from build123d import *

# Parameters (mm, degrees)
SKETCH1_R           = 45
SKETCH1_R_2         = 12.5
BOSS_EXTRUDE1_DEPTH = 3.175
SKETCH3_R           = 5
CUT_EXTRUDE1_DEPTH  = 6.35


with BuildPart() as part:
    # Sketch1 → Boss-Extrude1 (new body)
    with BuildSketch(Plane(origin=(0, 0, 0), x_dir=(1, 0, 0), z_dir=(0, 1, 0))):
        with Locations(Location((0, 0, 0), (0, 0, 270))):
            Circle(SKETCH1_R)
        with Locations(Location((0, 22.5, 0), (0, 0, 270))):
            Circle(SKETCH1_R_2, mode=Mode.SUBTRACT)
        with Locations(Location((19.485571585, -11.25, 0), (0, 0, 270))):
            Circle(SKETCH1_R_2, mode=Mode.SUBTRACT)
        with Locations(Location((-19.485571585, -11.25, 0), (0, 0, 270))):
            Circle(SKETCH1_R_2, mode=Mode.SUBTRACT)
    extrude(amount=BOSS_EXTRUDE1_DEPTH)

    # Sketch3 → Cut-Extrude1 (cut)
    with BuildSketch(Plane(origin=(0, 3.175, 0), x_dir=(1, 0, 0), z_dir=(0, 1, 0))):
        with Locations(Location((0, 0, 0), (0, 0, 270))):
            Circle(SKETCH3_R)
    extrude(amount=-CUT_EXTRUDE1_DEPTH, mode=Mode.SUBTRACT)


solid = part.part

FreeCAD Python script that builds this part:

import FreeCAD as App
import Part
import Sketcher
from FreeCAD import Vector
Q = App.Units.Quantity

doc = App.newDocument("Part")
params = doc.addObject("Spreadsheet::Sheet", "Params")
for row, (alias, value) in enumerate([
    ("sketch1_diameter", "90 mm"),
    ("sketch1_diameter2", "25 mm"),
    ("pad1_length", "3.175 mm"),
    ("sketch2_diameter", "10 mm"),
    ("pocket1_length", "6.35 mm"),
], start=1):
    params.set(f"A{row}", alias)
    params.set(f"B{row}", "=" + value)
    params.setAlias(f"B{row}", alias)

body = doc.addObject("PartDesign::Body", "Body")

sketch1 = body.newObject("Sketcher::SketchObject", "Sketch")
sketch1.AttachmentSupport = (doc.getObject("XZ_Plane"), [""])
sketch1.MapMode = "FlatFace"
sketch1.addGeometry([
    Part.Circle(Vector(0, 0, 0), Vector(0, 0, 1), 45),
    Part.Circle(Vector(0, -22.5, 0), Vector(0, 0, 1), 12.5),
    Part.Circle(Vector(-19.485572, 11.25, 0), Vector(0, 0, 1), 12.5),
    Part.Circle(Vector(19.485572, 11.25, 0), Vector(0, 0, 1), 12.5),
], False)
sketch1.addConstraint([
    Sketcher.Constraint("Coincident", 0, 3, -1, 1),
    Sketcher.Constraint("Equal", 1, 2),
    Sketcher.Constraint("Equal", 2, 3),
    Sketcher.Constraint("Symmetric", 2, 3, 3, 3, -2),
    Sketcher.Constraint("PointOnObject", 1, 3, -2),
    Sketcher.Constraint("Diameter", 0, Q("90 mm")),
    Sketcher.Constraint("Diameter", 1, Q("25 mm")),
    Sketcher.Constraint("DistanceY", 1, 3, -1, 1, Q("22.5 mm")),
    Sketcher.Constraint("DistanceY", -1, 1, 2, 3, Q("11.25 mm")),
    Sketcher.Constraint("DistanceX", 2, 3, -1, 1, Q("19.485572 mm")),
])
sketch1.setExpression("Constraints[5]", "Params.sketch1_diameter")
sketch1.setExpression("Constraints[6]", "Params.sketch1_diameter2")
pad1 = body.newObject("PartDesign::Pad", "Pad")
pad1.Profile = sketch1
pad1.setExpression("Length", "Params.pad1_length")
pad1.Reversed = True

sketch2 = body.newObject("Sketcher::SketchObject", "Sketch001")
sketch2.AttachmentSupport = (doc.getObject("XZ_Plane"), [""])
sketch2.MapMode = "FlatFace"
sketch2.AttachmentOffset = App.Placement(Vector(0, 0, -3.175), App.Rotation())
sketch2.addGeometry(Part.Circle(Vector(0, 0, 0), Vector(0, 0, 1), 5), False)
sketch2.addConstraint([
    Sketcher.Constraint("Coincident", 0, 3, -1, 1),
    Sketcher.Constraint("Diameter", 0, Q("10 mm")),
])
sketch2.setExpression("Constraints[1]", "Params.sketch2_diameter")
pocket1 = body.newObject("PartDesign::Pocket", "Pocket")
pocket1.Profile = sketch2
pocket1.setExpression("Length", "Params.pocket1_length")
pocket1.Reversed = True

doc.recompute()
